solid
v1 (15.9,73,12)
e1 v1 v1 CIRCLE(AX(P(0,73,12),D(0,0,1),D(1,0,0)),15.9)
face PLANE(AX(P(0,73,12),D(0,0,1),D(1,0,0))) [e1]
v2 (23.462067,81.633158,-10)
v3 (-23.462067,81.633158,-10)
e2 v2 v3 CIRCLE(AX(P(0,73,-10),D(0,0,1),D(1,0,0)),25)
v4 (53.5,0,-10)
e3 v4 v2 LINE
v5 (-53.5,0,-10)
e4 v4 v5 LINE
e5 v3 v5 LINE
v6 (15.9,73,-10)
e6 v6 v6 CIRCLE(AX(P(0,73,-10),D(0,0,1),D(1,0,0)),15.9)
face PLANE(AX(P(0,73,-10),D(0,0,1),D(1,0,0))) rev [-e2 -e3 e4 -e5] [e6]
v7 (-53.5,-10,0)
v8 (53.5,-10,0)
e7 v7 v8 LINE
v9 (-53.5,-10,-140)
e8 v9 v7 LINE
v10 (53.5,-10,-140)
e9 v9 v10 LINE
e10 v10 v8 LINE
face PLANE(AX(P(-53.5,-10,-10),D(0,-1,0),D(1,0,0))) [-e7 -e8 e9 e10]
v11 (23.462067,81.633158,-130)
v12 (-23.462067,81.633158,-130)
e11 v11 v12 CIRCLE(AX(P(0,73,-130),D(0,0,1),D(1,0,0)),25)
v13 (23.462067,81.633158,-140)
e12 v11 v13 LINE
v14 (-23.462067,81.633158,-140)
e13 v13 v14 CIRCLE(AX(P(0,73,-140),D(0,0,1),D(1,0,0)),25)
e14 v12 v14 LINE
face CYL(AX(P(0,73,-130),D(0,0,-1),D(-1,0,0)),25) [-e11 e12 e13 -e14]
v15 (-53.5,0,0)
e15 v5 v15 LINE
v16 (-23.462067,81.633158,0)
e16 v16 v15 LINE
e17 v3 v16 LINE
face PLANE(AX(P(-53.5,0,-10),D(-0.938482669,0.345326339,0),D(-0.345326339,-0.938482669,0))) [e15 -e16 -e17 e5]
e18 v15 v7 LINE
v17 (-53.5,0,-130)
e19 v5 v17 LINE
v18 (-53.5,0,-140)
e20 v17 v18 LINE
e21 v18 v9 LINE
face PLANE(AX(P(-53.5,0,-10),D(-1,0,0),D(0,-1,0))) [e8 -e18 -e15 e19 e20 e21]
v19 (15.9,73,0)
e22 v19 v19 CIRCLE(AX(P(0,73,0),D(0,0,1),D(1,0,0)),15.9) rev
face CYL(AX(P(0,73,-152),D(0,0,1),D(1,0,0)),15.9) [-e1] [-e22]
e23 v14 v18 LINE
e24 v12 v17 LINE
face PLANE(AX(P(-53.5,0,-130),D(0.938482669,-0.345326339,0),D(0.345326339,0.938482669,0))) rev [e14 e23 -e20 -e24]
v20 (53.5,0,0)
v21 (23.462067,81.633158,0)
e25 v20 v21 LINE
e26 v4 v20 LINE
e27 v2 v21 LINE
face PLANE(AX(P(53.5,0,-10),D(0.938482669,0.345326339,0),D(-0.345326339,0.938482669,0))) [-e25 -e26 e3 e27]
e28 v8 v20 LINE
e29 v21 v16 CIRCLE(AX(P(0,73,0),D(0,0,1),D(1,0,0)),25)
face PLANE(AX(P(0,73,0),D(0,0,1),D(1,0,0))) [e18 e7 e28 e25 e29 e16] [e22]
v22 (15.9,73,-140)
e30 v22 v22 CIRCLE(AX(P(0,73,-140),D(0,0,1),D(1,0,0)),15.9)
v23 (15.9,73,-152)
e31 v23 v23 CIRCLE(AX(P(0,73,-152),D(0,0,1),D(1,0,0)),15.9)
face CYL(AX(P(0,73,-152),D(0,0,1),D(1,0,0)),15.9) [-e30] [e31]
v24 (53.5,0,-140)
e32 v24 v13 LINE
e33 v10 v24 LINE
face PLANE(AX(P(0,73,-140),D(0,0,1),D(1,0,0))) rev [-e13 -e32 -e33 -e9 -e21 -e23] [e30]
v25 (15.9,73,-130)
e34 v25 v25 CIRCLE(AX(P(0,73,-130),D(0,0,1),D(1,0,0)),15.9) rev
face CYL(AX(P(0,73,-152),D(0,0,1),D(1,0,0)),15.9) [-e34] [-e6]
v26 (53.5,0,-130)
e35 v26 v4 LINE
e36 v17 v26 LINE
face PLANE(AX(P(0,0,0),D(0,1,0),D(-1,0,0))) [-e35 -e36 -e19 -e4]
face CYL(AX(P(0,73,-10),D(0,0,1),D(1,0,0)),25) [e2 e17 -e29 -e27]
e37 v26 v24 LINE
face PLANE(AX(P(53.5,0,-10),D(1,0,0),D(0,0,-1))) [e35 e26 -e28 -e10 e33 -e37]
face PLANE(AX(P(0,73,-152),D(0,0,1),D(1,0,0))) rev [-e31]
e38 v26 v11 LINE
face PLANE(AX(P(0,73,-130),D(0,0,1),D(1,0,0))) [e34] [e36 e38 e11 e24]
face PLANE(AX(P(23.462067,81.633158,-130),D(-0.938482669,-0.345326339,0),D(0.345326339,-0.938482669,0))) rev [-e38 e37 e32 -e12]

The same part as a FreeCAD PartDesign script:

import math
import FreeCAD as App
import Part
import Sketcher


def add_polygon(sketch, points):
    """Adds a closed chain of lines whose ends are joined by coincident constraints."""
    first, n = sketch.GeometryCount, len(points)
    for a, b in zip(points, points[1:] + points[:1]):
        sketch.addGeometry(Part.LineSegment(App.Vector(*a, 0), App.Vector(*b, 0)), False)
    for i in range(n):
        sketch.addConstraint(Sketcher.Constraint("Coincident", first + i, 2, first + (i + 1) % n, 1))

doc = App.newDocument("Part")
body = doc.addObject("PartDesign::Body", "Body")

sketch1 = body.newObject("Sketcher::SketchObject", "Sketch")
sketch1.AttachmentSupport = (doc.getObject("XY_Plane"), [""])
sketch1.MapMode = "FlatFace"
sketch1.addGeometry(Part.Circle(App.Vector(0, 73, 0), App.Vector(0, 0, 1), 16), False)
sketch1.addConstraint([
    Sketcher.Constraint("PointOnObject", 0, 3, -2),
    Sketcher.Constraint("Diameter", 0, 31.8),
    Sketcher.Constraint("DistanceY", -1, 1, 0, 3, 73.0),
])
pad1 = body.newObject("PartDesign::Pad", "Pad")
pad1.Profile = sketch1
pad1.Type = "TwoLengths"
pad1.Length = 12
pad1.Length2 = 152

sketch2 = body.newObject("Sketcher::SketchObject", "Sketch001")
sketch2.AttachmentSupport = (doc.getObject("XY_Plane"), [""])
sketch2.MapMode = "FlatFace"
sketch2.addGeometry([
    Part.LineSegment(App.Vector(-54, 0, 0), App.Vector(-54, -10, 0)),
    Part.LineSegment(App.Vector(-54, -10, 0), App.Vector(54, -10, 0)),
    Part.LineSegment(App.Vector(54, -10, 0), App.Vector(54, 0, 0)),
    Part.LineSegment(App.Vector(54, 0, 0), App.Vector(23, 82, 0)),
    Part.ArcOfCircle(Part.Circle(App.Vector(0, 73, 0), App.Vector(0, 0, 1), 25), math.radians(20), math.radians(160)),
    Part.LineSegment(App.Vector(-23, 82, 0), App.Vector(-54, 0, 0)),
    Part.Circle(App.Vector(0, 73, 0), App.Vector(0, 0, 1), 16),
], False)
sketch2.addConstraint([
    Sketcher.Constraint("Coincident", 0, 2, 1, 1),
    Sketcher.Constraint("Coincident", 1, 2, 2, 1),
    Sketcher.Constraint("Coincident", 2, 2, 3, 1),
    Sketcher.Constraint("Tangent", 3, 2, 4, 1),
    Sketcher.Constraint("Tangent", 4, 2, 5, 1),
    Sketcher.Constraint("Coincident", 5, 2, 0, 1),
    Sketcher.Constraint("Vertical", 0),
    Sketcher.Constraint("Horizontal", 1),
    Sketcher.Constraint("Vertical", 2),
    Sketcher.Constraint("Coincident", 6, 3, 4, 3),
    Sketcher.Constraint("Symmetric", 2, 2, 5, 2, -1, 1),
    Sketcher.Constraint("Symmetric", 3, 2, 4, 2, -2),
    Sketcher.Constraint("Radius", 4, 25.0),
    Sketcher.Constraint("Diameter", 6, 31.8),
    Sketcher.Constraint("DistanceX", 1, 1, 1, 2, 107.0),
    Sketcher.Constraint("DistanceY", 0, 2, 0, 1, 10.0),
    Sketcher.Constraint("DistanceY", -1, 1, 4, 3, 73.0),
])
pad2 = body.newObject("PartDesign::Pad", "Pad001")
pad2.Profile = sketch2
pad2.Length = 10
pad2.Reversed = True

sketch3 = body.newObject("Sketcher::SketchObject", "Sketch002")
sketch3.AttachmentSupport = (doc.getObject("XY_Plane"), [""])
sketch3.MapMode = "FlatFace"
sketch3.AttachmentOffset = App.Placement(App.Vector(0, 0, -130), App.Rotation())
sketch3.addGeometry([
    Part.LineSegment(App.Vector(-23, 82, 0), App.Vector(-54, 0, 0)),
    Part.LineSegment(App.Vector(-54, 0, 0), App.Vector(-54, -10, 0)),
    Part.LineSegment(App.Vector(-54, -10, 0), App.Vector(54, -10, 0)),
    Part.LineSegment(App.Vector(54, -10, 0), App.Vector(54, 0, 0)),
    Part.LineSegment(App.Vector(54, 0, 0), App.Vector(23, 82, 0)),
    Part.ArcOfCircle(Part.Circle(App.Vector(0, 73, 0), App.Vector(0, 0, 1), 25), math.radians(20), math.radians(160)),
    Part.Circle(App.Vector(0, 73, 0), App.Vector(0, 0, 1), 16),
], False)
sketch3.addConstraint([
    Sketcher.Constraint("Coincident", 0, 2, 1, 1),
    Sketcher.Constraint("Coincident", 1, 2, 2, 1),
    Sketcher.Constraint("Coincident", 2, 2, 3, 1),
    Sketcher.Constraint("Coincident", 3, 2, 4, 1),
    Sketcher.Constraint("Tangent", 4, 2, 5, 1),
    Sketcher.Constraint("Tangent", 5, 2, 0, 1),
    Sketcher.Constraint("Vertical", 1),
    Sketcher.Constraint("Horizontal", 2),
    Sketcher.Constraint("Vertical", 3),
    Sketcher.Constraint("Coincident", 6, 3, 5, 3),
    Sketcher.Constraint("Symmetric", 0, 2, 3, 2, -1, 1),
    Sketcher.Constraint("Symmetric", 4, 2, 5, 2, -2),
    Sketcher.Constraint("Radius", 5, 25.0),
    Sketcher.Constraint("Diameter", 6, 31.8),
    Sketcher.Constraint("DistanceX", 2, 1, 2, 2, 107.0),
    Sketcher.Constraint("DistanceY", 1, 2, 1, 1, 10.0),
    Sketcher.Constraint("DistanceY", -1, 1, 5, 3, 73.0),
])
pad3 = body.newObject("PartDesign::Pad", "Pad002")
pad3.Profile = sketch3
pad3.Length = 10
pad3.Reversed = True

sketch4 = body.newObject("Sketcher::SketchObject", "Sketch003")
sketch4.AttachmentSupport = (doc.getObject("XZ_Plane"), [""])
sketch4.MapMode = "FlatFace"
sketch4.AttachmentOffset = App.Placement(App.Vector(0, 0, 10), App.Rotation())
add_polygon(sketch4, [(-54, -10), (-54, -130), (54, -130), (54, -10)])
sketch4.addConstraint([
    Sketcher.Constraint("Vertical", 0),
    Sketcher.Constraint("Horizontal", 1),
    Sketcher.Constraint("Vertical", 2),
    Sketcher.Constraint("Horizontal", 3),
    Sketcher.Constraint("DistanceX", 1, 1, 1, 2, 107.0),
    Sketcher.Constraint("DistanceY", 0, 2, 0, 1, 120.0),
    Sketcher.Constraint("DistanceY", 0, 2, -1, 1, 130.0),
    Sketcher.Constraint("DistanceX", 0, 2, -1, 1, 53.5),
])
pad4 = body.newObject("PartDesign::Pad", "Pad003")
pad4.Profile = sketch4
pad4.Length = 10
pad4.Reversed = True

doc.recompute()
